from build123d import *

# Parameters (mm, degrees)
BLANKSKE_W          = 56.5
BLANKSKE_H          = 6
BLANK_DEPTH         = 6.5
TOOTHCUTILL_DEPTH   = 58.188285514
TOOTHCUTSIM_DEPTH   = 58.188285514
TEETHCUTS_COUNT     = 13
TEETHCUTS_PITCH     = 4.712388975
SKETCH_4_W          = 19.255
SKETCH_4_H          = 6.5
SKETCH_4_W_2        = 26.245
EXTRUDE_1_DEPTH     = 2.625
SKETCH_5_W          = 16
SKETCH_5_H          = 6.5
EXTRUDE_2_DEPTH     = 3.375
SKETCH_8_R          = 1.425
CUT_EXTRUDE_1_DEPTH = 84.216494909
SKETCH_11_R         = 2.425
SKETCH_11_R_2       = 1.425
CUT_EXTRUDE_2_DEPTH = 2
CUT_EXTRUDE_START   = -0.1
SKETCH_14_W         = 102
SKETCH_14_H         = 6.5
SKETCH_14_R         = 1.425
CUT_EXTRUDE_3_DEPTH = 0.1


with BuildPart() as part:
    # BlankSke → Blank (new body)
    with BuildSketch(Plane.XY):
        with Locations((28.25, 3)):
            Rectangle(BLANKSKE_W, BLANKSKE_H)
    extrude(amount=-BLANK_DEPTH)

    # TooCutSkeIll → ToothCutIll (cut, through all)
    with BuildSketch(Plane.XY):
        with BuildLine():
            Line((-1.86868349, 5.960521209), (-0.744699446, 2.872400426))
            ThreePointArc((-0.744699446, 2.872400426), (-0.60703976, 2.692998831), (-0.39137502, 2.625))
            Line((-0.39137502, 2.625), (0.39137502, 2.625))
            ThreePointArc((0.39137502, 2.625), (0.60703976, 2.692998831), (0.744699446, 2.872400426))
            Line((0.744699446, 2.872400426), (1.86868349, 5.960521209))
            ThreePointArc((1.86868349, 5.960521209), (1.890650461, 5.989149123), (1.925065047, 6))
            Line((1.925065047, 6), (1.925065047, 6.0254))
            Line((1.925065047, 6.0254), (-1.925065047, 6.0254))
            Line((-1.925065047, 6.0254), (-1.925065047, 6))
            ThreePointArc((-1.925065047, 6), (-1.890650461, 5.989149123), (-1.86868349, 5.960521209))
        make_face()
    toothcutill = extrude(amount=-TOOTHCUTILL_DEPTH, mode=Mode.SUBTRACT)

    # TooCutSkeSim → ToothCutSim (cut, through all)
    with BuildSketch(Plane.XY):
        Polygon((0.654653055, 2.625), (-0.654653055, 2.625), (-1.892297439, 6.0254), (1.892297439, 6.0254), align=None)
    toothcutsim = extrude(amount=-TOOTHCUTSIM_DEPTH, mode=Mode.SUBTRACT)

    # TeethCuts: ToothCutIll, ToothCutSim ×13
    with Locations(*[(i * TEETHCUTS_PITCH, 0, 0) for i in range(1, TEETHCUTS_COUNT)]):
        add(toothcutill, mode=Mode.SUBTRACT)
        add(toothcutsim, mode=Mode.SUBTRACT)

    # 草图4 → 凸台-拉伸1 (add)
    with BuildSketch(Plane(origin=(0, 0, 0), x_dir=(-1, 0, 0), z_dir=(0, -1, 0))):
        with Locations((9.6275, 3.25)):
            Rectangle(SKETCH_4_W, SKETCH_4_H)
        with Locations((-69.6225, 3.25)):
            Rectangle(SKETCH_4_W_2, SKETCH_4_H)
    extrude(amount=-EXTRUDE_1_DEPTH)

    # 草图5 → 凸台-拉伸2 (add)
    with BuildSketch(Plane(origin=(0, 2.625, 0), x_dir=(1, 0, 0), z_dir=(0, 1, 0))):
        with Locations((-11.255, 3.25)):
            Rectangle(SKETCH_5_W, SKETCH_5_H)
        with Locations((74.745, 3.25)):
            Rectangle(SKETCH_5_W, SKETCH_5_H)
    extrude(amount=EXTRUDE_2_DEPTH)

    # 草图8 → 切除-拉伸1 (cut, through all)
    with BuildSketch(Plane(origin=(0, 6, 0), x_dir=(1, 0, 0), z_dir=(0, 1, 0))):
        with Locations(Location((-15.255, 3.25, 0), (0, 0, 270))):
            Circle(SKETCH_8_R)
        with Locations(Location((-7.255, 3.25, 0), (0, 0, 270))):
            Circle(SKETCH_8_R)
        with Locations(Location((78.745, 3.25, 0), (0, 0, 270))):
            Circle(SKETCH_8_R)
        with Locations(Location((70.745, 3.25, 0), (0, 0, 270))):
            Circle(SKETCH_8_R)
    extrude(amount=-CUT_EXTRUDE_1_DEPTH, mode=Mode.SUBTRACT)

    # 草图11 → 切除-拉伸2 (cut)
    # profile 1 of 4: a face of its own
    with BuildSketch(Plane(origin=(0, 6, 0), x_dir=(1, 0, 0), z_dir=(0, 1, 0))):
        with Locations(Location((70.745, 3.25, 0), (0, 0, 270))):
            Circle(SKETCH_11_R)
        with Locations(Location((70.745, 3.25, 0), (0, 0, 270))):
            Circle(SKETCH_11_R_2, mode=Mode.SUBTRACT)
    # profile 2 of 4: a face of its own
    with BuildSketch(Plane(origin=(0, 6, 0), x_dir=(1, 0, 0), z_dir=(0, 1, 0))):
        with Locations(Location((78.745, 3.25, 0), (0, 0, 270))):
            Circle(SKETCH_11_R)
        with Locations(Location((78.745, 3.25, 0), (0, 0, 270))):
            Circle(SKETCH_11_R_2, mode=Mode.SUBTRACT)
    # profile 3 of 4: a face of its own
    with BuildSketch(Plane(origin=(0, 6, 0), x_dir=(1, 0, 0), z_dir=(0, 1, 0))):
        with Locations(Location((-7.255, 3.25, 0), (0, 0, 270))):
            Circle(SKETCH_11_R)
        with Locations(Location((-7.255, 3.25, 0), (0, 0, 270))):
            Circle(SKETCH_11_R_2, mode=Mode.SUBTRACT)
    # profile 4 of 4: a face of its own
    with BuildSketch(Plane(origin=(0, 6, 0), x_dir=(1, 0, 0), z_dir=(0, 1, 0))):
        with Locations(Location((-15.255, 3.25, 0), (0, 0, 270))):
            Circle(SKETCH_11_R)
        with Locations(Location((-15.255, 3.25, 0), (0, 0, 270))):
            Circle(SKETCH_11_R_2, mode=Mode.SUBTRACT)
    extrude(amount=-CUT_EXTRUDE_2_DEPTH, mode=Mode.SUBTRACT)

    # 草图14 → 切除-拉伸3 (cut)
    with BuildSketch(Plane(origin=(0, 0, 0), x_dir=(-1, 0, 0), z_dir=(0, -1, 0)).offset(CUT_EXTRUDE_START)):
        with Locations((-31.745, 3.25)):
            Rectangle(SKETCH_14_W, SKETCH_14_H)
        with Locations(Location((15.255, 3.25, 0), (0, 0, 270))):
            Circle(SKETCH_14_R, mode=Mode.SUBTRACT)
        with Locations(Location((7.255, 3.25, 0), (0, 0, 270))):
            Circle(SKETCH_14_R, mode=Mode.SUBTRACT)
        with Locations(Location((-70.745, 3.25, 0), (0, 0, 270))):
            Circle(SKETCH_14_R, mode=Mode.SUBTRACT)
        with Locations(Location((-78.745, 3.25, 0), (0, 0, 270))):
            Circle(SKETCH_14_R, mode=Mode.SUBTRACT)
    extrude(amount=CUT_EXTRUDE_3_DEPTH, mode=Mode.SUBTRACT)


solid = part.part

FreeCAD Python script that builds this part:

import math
import FreeCAD as App
import Part
import Sketcher
Q = App.Units.Quantity


def add_polygon(sketch, points):
    """Adds a closed chain of lines whose ends are joined by coincident constraints."""
    first, n = sketch.GeometryCount, len(points)
    for a, b in zip(points, points[1:] + points[:1]):
        sketch.addGeometry(Part.LineSegment(App.Vector(*a, 0), App.Vector(*b, 0)), False)
    for i in range(n):
        sketch.addConstraint(Sketcher.Constraint("Coincident", first + i, 2, first + (i + 1) % n, 1))

doc = App.newDocument("Part")
body = doc.addObject("PartDesign::Body", "Body")

# Sketch on XY plane
sketch1 = doc.addObject("Sketcher::SketchObject", "Sketch")
body.addObject(sketch1)
sketch1.AttachmentSupport = (doc.XY_Plane, [""])
sketch1.MapMode = "FlatFace"
add_polygon(sketch1, [(0, 6), (0, 0), (56, 0), (56, 6)])  # lines 0-3
sketch1.addConstraint([
    Sketcher.Constraint("Vertical", 0),
    Sketcher.Constraint("Horizontal", 1),
    Sketcher.Constraint("Vertical", 2),
    Sketcher.Constraint("Horizontal", 3),
    Sketcher.Constraint("Coincident", 0, 2, -1, 1),
    Sketcher.Constraint("DistanceY", 0, 2, 0, 1, Q("6 mm")),
    Sketcher.Constraint("DistanceX", 1, 1, 1, 2, Q("56.5 mm")),
])
pad1 = doc.addObject("PartDesign::Pad", "Pad")
body.addObject(pad1)
pad1.Profile = sketch1
pad1.Length = 6.5
pad1.Reversed = True

# Sketch on XY plane
sketch2 = doc.addObject("Sketcher::SketchObject", "Sketch001")
body.addObject(sketch2)
sketch2.AttachmentSupport = (doc.XY_Plane, [""])
sketch2.MapMode = "FlatFace"
sketch2.addGeometry([
    Part.LineSegment(App.Vector(-1.869, 5.961, 0), App.Vector(-0.745, 2.872, 0)),  # 0
    Part.ArcOfCircle(Part.Circle(App.Vector(-0.391, 3.001, 0), App.Vector(0, 0, 1), 0.376), math.radians(-160), math.radians(-90)),  # 1
    Part.LineSegment(App.Vector(-0.391, 2.625, 0), App.Vector(0.391, 2.625, 0)),  # 2
    Part.ArcOfCircle(Part.Circle(App.Vector(0.391, 3.001, 0), App.Vector(0, 0, 1), 0.376), math.radians(-90), math.radians(-20)),  # 3
    Part.LineSegment(App.Vector(0.745, 2.872, 0), App.Vector(1.869, 5.961, 0)),  # 4
    Part.ArcOfCircle(Part.Circle(App.Vector(1.925, 5.94, 0), App.Vector(0, 0, 1), 0.06), math.radians(90), math.radians(160)),  # 5
    Part.LineSegment(App.Vector(1.925, 6, 0), App.Vector(1.925, 6.025, 0)),  # 6
    Part.LineSegment(App.Vector(1.925, 6.025, 0), App.Vector(-1.925, 6.025, 0)),  # 7
    Part.LineSegment(App.Vector(-1.925, 6.025, 0), App.Vector(-1.925, 6, 0)),  # 8
    Part.ArcOfCircle(Part.Circle(App.Vector(-1.925, 5.94, 0), App.Vector(0, 0, 1), 0.06), math.radians(20), math.radians(90)),  # 9
], False)
sketch2.addConstraint([
    Sketcher.Constraint("Tangent", 0, 2, 1, 1),
    Sketcher.Constraint("Tangent", 1, 2, 2, 1),
    Sketcher.Constraint("Tangent", 2, 2, 3, 1),
    Sketcher.Constraint("Tangent", 3, 2, 4, 1),
    Sketcher.Constraint("Tangent", 4, 2, 5, 2),
    Sketcher.Constraint("Coincident", 5, 1, 6, 1),
    Sketcher.Constraint("Coincident", 6, 2, 7, 1),
    Sketcher.Constraint("Coincident", 7, 2, 8, 1),
    Sketcher.Constraint("Coincident", 8, 2, 9, 2),
    Sketcher.Constraint("Tangent", 9, 1, 0, 1),
    Sketcher.Constraint("Horizontal", 2),
    Sketcher.Constraint("Vertical", 6),
    Sketcher.Constraint("Horizontal", 7),
    Sketcher.Constraint("Vertical", 8),
    Sketcher.Constraint("Equal", 1, 3),
    Sketcher.Constraint("Equal", 5, 9),
    Sketcher.Constraint("Symmetric", 5, 3, 9, 3, -2),
    Sketcher.Constraint("Horizontal", 0, 2, 3, 2),
    Sketcher.Constraint("Vertical", 9, 3, 7, 2),
    Sketcher.Constraint("Angle", 0, Q("-70 deg")),
    Sketcher.Constraint("Radius", 5, Q("0.06 mm")),
    Sketcher.Constraint("DistanceY", -1, 1, 5, 1, Q("6 mm")),
    Sketcher.Constraint("Radius", 1, Q("0.376 mm")),
    Sketcher.Constraint("DistanceY", 6, 1, 6, 2, Q("0.0254 mm")),
    Sketcher.Constraint("DistanceY", -1, 1, 1, 3, Q("3.001 mm")),
    Sketcher.Constraint("DistanceX", 2, 1, 2, 2, Q("0.78275 mm")),
    Sketcher.Constraint("DistanceX", 7, 2, 7, 1, Q("3.85013 mm")),
])
pocket1 = doc.addObject("PartDesign::Pocket", "Pocket")
body.addObject(pocket1)
pocket1.Profile = sketch2
pocket1.Type = "ThroughAll"

# Sketch on XY plane
sketch3 = doc.addObject("Sketcher::SketchObject", "Sketch002")
body.addObject(sketch3)
sketch3.AttachmentSupport = (doc.XY_Plane, [""])
sketch3.MapMode = "FlatFace"
add_polygon(sketch3, [(-0.7, 2.6), (0.7, 2.6), (1.9, 6), (-1.9, 6)])  # lines 0-3
sketch3.addConstraint([
    Sketcher.Constraint("Horizontal", 0),
    Sketcher.Constraint("Horizontal", 2),
    Sketcher.Constraint("Equal", 1, 3),
    Sketcher.Constraint("Angle", 1, Q("70 deg")),
    Sketcher.Constraint("DistanceY", -1, 1, 0, 2, Q("2.625 mm")),
    Sketcher.Constraint("DistanceY", -1, 1, 1, 2, Q("6.0254 mm")),
    Sketcher.Constraint("DistanceX", 0, 1, 0, 2, Q("1.309306 mm")),
    Sketcher.Constraint("DistanceX", -1, 1, 0, 2, Q("0.654653 mm")),
])
pocket2 = doc.addObject("PartDesign::Pocket", "Pocket001")
body.addObject(pocket2)
pocket2.Profile = sketch3
pocket2.Type = "ThroughAll"
doc.recompute()

linearpattern = doc.addObject("PartDesign::LinearPattern", "LinearPattern")
body.addObject(linearpattern)
linearpattern.Originals = [pocket1, pocket2]
linearpattern.Direction = (doc.X_Axis, [""])
linearpattern.Mode = "offset"
linearpattern.Offset = 4.712389
linearpattern.Occurrences = 13
body.Tip = linearpattern

# Sketch on XZ plane
sketch4 = doc.addObject("Sketcher::SketchObject", "Sketch003")
body.addObject(sketch4)
sketch4.AttachmentSupport = (doc.XZ_Plane, [""])
sketch4.MapMode = "FlatFace"
add_polygon(sketch4, [(0, -6), (0, 0), (-19, 0), (-19, -6)])  # lines 0-3
add_polygon(sketch4, [(83, -6), (83, 0), (56, 0), (56, -6)])  # lines 4-7
sketch4.addConstraint([
    Sketcher.Constraint("Vertical", 0),
    Sketcher.Constraint("Horizontal", 1),
    Sketcher.Constraint("Vertical", 2),
    Sketcher.Constraint("Horizontal", 3),
    Sketcher.Constraint("Vertical", 4),
    Sketcher.Constraint("Horizontal", 5),
    Sketcher.Constraint("Vertical", 6),
    Sketcher.Constraint("Horizontal", 7),
    Sketcher.Constraint("Coincident", 0, 2, -1, 1),
    Sketcher.Constraint("PointOnObject", 4, 2, -1),
    Sketcher.Constraint("Horizontal", 3, 2, 6, 2),
    Sketcher.Constraint("DistanceY", 0, 1, 0, 2, Q("6.5 mm")),
    Sketcher.Constraint("DistanceX", 1, 2, 4, 2, Q("102 mm")),
    Sketcher.Constraint("DistanceX", -1, 1, 5, 2, Q("56.5 mm")),
    Sketcher.Constraint("DistanceX", 1, 2, 1, 1, Q("19.255 mm")),
])
pad2 = doc.addObject("PartDesign::Pad", "Pad001")
body.addObject(pad2)
pad2.Profile = sketch4
pad2.Length = 2.625
pad2.Reversed = True

# Sketch on XZ plane
sketch5 = doc.addObject("Sketcher::SketchObject", "Sketch004")
body.addObject(sketch5)
sketch5.AttachmentSupport = (doc.XZ_Plane, [""])
sketch5.MapMode = "FlatFace"
sketch5.AttachmentOffset = App.Placement(App.Vector(0, 0, -2.625), App.Rotation())
add_polygon(sketch5, [(-19, -6), (-19, 0), (-3, 0), (-3, -6)])  # lines 0-3
add_polygon(sketch5, [(67, -6), (67, 0), (83, 0), (83, -6)])  # lines 4-7
sketch5.addConstraint([
    Sketcher.Constraint("Vertical", 0),
    Sketcher.Constraint("Horizontal", 1),
    Sketcher.Constraint("Vertical", 2),
    Sketcher.Constraint("Horizontal", 3),
    Sketcher.Constraint("Vertical", 4),
    Sketcher.Constraint("Horizontal", 5),
    Sketcher.Constraint("Vertical", 6),
    Sketcher.Constraint("Horizontal", 7),
    Sketcher.Constraint("PointOnObject", 0, 2, -1),
    Sketcher.Constraint("PointOnObject", 4, 2, -1),
    Sketcher.Constraint("Horizontal", 3, 2, 6, 2),
    Sketcher.Constraint("Equal", 3, 5),
    Sketcher.Constraint("DistanceX", 1, 1, 1, 2, Q("16 mm")),
    Sketcher.Constraint("DistanceY", 0, 1, 0, 2, Q("6.5 mm")),
    Sketcher.Constraint("DistanceX", 1, 2, 4, 2, Q("70 mm")),
    Sketcher.Constraint("DistanceX", 0, 2, -1, 1, Q("19.255 mm")),
])
pad3 = doc.addObject("PartDesign::Pad", "Pad002")
body.addObject(pad3)
pad3.Profile = sketch5
pad3.Length = 3.375
pad3.Reversed = True

# Sketch on XZ plane
sketch6 = doc.addObject("Sketcher::SketchObject", "Sketch005")
body.addObject(sketch6)
sketch6.AttachmentSupport = (doc.XZ_Plane, [""])
sketch6.MapMode = "FlatFace"
sketch6.AttachmentOffset = App.Placement(App.Vector(0, 0, -6), App.Rotation())
sketch6.addGeometry([
    Part.Circle(App.Vector(-15.3, -3.2, 0), App.Vector(0, 0, 1), 1.4),
    Part.Circle(App.Vector(-7.3, -3.2, 0), App.Vector(0, 0, 1), 1.4),
    Part.Circle(App.Vector(78.7, -3.2, 0), App.Vector(0, 0, 1), 1.4),
    Part.Circle(App.Vector(70.7, -3.2, 0), App.Vector(0, 0, 1), 1.4),
], False)
sketch6.addConstraint([
    Sketcher.Constraint("Equal", 0, 1),
    Sketcher.Constraint("Equal", 1, 2),
    Sketcher.Constraint("Equal", 2, 3),
    Sketcher.Constraint("Horizontal", 0, 3, 1, 3),
    Sketcher.Constraint("Horizontal", 1, 3, 2, 3),
    Sketcher.Constraint("Horizontal", 2, 3, 3, 3),
    Sketcher.Constraint("Diameter", 0, Q("2.85 mm")),
    Sketcher.Constraint("DistanceX", 0, 3, 1, 3, Q("8 mm")),
    Sketcher.Constraint("DistanceX", 1, 3, 2, 3, Q("86 mm")),
    Sketcher.Constraint("DistanceX", 3, 3, 2, 3, Q("8 mm")),
    Sketcher.Constraint("DistanceY", 0, 3, -1, 1, Q("3.25 mm")),
    Sketcher.Constraint("DistanceX", 0, 3, -1, 1, Q("15.255 mm")),
])
pocket3 = doc.addObject("PartDesign::Pocket", "Pocket002")
body.addObject(pocket3)
pocket3.Profile = sketch6
pocket3.Type = "ThroughAll"
pocket3.Reversed = True

# Sketch on XZ plane
sketch7 = doc.addObject("Sketcher::SketchObject", "Sketch006")
body.addObject(sketch7)
sketch7.AttachmentSupport = (doc.XZ_Plane, [""])
sketch7.MapMode = "FlatFace"
sketch7.AttachmentOffset = App.Placement(App.Vector(0, 0, -6), App.Rotation())
sketch7.addGeometry([
    Part.Circle(App.Vector(70.7, -3.2, 0), App.Vector(0, 0, 1), 2.4),  # 0
    Part.Circle(App.Vector(70.7, -3.2, 0), App.Vector(0, 0, 1), 1.4),  # 1
    Part.Circle(App.Vector(78.7, -3.2, 0), App.Vector(0, 0, 1), 2.4),  # 2
    Part.Circle(App.Vector(78.7, -3.2, 0), App.Vector(0, 0, 1), 1.4),  # 3
    Part.Circle(App.Vector(-7.3, -3.2, 0), App.Vector(0, 0, 1), 2.4),  # 4
    Part.Circle(App.Vector(-7.3, -3.2, 0), App.Vector(0, 0, 1), 1.4),  # 5
    Part.Circle(App.Vector(-15.3, -3.2, 0), App.Vector(0, 0, 1), 2.4),  # 6
    Part.Circle(App.Vector(-15.3, -3.2, 0), App.Vector(0, 0, 1), 1.4),  # 7
], False)
sketch7.addConstraint([
    Sketcher.Constraint("Coincident", 1, 3, 0, 3),
    Sketcher.Constraint("Coincident", 3, 3, 2, 3),
    Sketcher.Constraint("Coincident", 5, 3, 4, 3),
    Sketcher.Constraint("Coincident", 7, 3, 6, 3),
    Sketcher.Constraint("Equal", 0, 2),
    Sketcher.Constraint("Equal", 1, 3),
    Sketcher.Constraint("Equal", 2, 4),
    Sketcher.Constraint("Equal", 3, 5),
    Sketcher.Constraint("Equal", 4, 6),
    Sketcher.Constraint("Equal", 5, 7),
    Sketcher.Constraint("Horizontal", 1, 3, 2, 3),
    Sketcher.Constraint("Horizontal", 3, 3, 4, 3),
    Sketcher.Constraint("Horizontal", 5, 3, 6, 3),
    Sketcher.Constraint("Diameter", 0, Q("4.85 mm")),
    Sketcher.Constraint("Diameter", 1, Q("2.85 mm")),
    Sketcher.Constraint("DistanceX", 0, 3, 2, 3, Q("8 mm")),
    Sketcher.Constraint("DistanceX", 4, 3, 0, 3, Q("78 mm")),
    Sketcher.Constraint("DistanceX", 6, 3, 4, 3, Q("8 mm")),
    Sketcher.Constraint("DistanceY", 0, 3, -1, 1, Q("3.25 mm")),
    Sketcher.Constraint("DistanceX", -1, 1, 0, 3, Q("70.745 mm")),
])
pocket4 = doc.addObject("PartDesign::Pocket", "Pocket003")
body.addObject(pocket4)
pocket4.Profile = sketch7
pocket4.Length = 2
pocket4.Reversed = True

# Sketch on XZ plane
sketch8 = doc.addObject("Sketcher::SketchObject", "Sketch007")
body.addObject(sketch8)
sketch8.AttachmentSupport = (doc.XZ_Plane, [""])
sketch8.MapMode = "FlatFace"
sketch8.AttachmentOffset = App.Placement(App.Vector(0, 0, -0.1), App.Rotation())
add_polygon(sketch8, [(82.7, -6.5), (82.7, 0), (-19.3, 0), (-19.3, -6.5)])  # lines 0-3
sketch8.addGeometry(Part.Circle(App.Vector(78.7, -3.2, 0), App.Vector(0, 0, 1), 1.4), False)  # 4
sketch8.addGeometry(Part.Circle(App.Vector(70.7, -3.2, 0), App.Vector(0, 0, 1), 1.4), False)  # 5
sketch8.addGeometry(Part.Circle(App.Vector(-7.3, -3.2, 0), App.Vector(0, 0, 1), 1.4), False)  # 6
sketch8.addGeometry(Part.Circle(App.Vector(-15.3, -3.2, 0), App.Vector(0, 0, 1), 1.4), False)  # 7
sketch8.addConstraint([
    Sketcher.Constraint("Vertical", 0),
    Sketcher.Constraint("Horizontal", 1),
    Sketcher.Constraint("Vertical", 2),
    Sketcher.Constraint("Horizontal", 3),
    Sketcher.Constraint("Equal", 4, 5),
    Sketcher.Constraint("Equal", 5, 6),
    Sketcher.Constraint("Equal", 6, 7),
    Sketcher.Constraint("PointOnObject", 0, 2, -1),
    Sketcher.Constraint("Horizontal", 4, 3, 5, 3),
    Sketcher.Constraint("Horizontal", 5, 3, 6, 3),
    Sketcher.Constraint("Horizontal", 6, 3, 7, 3),
    Sketcher.Constraint("Diameter", 4, Q("2.85 mm")),
    Sketcher.Constraint("DistanceX", 1, 2, 1, 1, Q("102 mm")),
    Sketcher.Constraint("DistanceY", 0, 1, 0, 2, Q("6.5 mm")),
    Sketcher.Constraint("DistanceX", 5, 3, 4, 3, Q("8 mm")),
    Sketcher.Constraint("DistanceX", 6, 3, 5, 3, Q("78 mm")),
    Sketcher.Constraint("DistanceX", 7, 3, 6, 3, Q("8 mm")),
    Sketcher.Constraint("DistanceX", 4, 3, 0, 2, Q("4 mm")),
    Sketcher.Constraint("DistanceY", 4, 3, -1, 1, Q("3.25 mm")),
    Sketcher.Constraint("DistanceX", -1, 1, 4, 3, Q("78.745 mm")),
])
pocket5 = doc.addObject("PartDesign::Pocket", "Pocket004")
body.addObject(pocket5)
pocket5.Profile = sketch8
pocket5.Length = 0.1
pocket5.Reversed = True

doc.recompute()
